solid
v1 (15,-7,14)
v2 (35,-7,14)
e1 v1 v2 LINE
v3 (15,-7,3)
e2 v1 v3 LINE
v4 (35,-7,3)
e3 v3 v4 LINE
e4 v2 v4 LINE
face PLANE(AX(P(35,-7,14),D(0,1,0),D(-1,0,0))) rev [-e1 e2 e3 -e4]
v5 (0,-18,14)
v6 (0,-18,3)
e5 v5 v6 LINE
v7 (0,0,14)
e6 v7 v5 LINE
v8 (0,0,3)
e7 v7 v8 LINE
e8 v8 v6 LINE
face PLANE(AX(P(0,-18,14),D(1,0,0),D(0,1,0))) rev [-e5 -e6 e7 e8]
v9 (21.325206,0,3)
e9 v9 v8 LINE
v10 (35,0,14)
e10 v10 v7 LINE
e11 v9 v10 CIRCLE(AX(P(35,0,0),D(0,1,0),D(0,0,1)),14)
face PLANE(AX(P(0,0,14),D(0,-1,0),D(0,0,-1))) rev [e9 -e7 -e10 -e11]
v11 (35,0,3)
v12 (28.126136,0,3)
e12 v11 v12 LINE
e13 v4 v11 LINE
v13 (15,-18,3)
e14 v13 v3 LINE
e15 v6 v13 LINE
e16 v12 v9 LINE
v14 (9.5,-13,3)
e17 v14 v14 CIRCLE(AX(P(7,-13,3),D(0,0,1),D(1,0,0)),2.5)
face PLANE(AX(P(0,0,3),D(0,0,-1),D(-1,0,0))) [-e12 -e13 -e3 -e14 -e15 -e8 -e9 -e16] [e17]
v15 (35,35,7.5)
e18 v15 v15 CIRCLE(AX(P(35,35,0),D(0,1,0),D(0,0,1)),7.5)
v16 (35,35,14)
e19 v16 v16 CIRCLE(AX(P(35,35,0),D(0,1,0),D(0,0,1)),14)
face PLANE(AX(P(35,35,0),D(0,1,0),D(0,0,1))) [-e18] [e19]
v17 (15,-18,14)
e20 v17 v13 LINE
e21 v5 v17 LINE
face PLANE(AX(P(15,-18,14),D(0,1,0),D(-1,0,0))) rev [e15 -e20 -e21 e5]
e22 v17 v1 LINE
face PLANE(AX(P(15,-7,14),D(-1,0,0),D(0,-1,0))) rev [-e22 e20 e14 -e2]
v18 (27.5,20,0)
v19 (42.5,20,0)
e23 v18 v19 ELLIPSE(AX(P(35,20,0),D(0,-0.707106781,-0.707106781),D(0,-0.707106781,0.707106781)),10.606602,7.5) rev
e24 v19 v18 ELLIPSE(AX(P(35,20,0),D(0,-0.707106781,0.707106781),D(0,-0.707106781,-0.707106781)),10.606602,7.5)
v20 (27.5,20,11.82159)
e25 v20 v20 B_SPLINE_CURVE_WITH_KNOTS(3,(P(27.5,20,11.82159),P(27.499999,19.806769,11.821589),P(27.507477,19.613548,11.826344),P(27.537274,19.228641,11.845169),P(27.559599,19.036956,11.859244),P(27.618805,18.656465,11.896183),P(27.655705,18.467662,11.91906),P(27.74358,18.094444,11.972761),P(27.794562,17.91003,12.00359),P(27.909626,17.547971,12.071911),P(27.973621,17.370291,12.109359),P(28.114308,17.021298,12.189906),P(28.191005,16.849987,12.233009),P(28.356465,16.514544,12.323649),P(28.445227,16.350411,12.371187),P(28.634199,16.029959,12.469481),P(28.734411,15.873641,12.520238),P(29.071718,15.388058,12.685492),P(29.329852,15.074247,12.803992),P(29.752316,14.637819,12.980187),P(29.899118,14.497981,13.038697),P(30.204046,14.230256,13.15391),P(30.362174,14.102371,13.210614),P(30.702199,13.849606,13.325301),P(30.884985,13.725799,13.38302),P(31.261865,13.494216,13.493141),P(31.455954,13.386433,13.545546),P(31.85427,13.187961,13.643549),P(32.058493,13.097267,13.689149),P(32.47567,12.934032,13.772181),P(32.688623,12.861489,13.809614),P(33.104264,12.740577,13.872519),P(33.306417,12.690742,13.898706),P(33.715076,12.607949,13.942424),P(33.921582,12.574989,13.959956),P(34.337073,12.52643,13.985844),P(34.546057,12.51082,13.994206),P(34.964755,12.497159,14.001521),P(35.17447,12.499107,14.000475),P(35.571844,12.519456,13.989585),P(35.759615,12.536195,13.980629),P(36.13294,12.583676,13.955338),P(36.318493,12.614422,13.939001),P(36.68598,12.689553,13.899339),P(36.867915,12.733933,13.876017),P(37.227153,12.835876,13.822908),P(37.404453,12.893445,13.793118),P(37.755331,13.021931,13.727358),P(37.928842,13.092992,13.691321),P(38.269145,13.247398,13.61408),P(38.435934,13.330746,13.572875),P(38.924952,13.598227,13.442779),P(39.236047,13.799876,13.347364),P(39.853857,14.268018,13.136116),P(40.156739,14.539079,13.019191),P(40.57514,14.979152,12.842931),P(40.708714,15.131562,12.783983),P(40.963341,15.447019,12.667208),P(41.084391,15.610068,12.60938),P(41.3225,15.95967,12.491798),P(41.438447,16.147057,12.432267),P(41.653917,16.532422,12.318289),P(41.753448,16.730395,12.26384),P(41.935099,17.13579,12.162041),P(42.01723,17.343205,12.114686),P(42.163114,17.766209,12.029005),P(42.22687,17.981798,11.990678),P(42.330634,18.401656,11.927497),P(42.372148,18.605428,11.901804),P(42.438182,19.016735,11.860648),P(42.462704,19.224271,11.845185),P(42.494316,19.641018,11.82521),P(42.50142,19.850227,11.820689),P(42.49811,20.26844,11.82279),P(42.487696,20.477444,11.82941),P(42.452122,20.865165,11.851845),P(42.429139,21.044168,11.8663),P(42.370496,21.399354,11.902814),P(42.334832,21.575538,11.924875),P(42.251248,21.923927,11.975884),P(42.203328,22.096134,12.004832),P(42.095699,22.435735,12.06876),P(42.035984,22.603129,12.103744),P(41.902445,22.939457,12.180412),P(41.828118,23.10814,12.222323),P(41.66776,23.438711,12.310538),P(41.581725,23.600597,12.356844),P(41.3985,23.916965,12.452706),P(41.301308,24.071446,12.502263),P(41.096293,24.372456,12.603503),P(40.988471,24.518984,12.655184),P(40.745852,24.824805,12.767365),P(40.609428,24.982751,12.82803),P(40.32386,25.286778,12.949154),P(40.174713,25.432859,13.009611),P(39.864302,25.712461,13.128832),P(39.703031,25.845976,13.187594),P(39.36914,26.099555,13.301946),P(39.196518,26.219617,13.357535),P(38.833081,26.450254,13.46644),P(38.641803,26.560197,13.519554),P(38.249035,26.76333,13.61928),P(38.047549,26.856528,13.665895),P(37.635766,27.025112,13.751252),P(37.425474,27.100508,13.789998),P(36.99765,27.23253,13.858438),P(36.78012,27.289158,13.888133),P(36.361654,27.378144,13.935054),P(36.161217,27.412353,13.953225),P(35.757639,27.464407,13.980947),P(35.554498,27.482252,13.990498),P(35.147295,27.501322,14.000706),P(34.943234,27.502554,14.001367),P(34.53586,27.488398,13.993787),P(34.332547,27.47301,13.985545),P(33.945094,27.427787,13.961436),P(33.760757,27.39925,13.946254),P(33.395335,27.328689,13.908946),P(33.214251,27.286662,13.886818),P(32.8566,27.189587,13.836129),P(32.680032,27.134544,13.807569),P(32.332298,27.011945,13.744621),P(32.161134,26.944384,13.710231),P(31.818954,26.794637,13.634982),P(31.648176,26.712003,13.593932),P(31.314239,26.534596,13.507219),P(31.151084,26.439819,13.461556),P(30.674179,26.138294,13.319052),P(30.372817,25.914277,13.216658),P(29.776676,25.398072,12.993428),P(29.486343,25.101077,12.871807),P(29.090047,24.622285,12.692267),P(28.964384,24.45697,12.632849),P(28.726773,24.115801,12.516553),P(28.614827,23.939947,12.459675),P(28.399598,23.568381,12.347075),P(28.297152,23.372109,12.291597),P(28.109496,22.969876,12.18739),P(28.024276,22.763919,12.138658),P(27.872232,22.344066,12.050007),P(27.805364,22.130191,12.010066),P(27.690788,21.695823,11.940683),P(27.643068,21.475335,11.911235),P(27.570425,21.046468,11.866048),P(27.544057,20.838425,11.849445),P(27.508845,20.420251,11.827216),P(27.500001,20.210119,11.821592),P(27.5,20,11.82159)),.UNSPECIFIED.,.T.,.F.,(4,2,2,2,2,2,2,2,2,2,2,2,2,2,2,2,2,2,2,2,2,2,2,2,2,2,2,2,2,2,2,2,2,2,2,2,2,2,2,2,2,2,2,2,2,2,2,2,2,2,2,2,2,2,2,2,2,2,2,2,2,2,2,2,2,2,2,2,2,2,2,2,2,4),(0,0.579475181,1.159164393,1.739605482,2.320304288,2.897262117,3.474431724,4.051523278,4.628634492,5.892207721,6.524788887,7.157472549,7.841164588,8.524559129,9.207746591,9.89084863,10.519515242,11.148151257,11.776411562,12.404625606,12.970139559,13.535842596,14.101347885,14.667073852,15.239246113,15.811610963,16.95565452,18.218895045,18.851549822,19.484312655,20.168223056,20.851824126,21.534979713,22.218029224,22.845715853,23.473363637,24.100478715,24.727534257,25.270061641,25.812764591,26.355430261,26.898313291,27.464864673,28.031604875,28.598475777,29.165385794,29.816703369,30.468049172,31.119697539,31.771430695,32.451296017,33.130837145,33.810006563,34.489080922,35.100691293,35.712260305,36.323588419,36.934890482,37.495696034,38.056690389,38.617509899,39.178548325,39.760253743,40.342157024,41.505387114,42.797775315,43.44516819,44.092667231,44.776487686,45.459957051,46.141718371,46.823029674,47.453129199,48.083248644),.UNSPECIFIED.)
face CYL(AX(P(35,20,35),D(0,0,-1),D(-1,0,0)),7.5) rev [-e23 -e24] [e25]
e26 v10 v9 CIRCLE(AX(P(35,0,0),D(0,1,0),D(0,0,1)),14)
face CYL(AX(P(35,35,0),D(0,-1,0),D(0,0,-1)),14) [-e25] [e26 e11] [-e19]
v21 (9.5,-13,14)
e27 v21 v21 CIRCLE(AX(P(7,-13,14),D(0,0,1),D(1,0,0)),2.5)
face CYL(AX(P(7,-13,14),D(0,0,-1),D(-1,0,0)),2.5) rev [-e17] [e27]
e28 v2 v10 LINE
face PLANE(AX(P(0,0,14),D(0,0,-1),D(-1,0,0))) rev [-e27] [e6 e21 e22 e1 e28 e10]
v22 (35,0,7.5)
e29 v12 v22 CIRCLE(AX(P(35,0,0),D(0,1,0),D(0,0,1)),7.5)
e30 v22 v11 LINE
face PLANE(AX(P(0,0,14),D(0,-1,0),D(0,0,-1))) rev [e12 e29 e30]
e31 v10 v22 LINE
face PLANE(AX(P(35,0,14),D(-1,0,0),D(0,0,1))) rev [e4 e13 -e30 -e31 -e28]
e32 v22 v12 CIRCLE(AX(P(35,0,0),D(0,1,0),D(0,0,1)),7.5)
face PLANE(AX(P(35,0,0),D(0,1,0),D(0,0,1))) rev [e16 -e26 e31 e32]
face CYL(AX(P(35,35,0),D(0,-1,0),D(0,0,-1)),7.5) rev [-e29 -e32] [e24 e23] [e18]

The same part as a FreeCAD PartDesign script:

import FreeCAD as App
import Part
import Sketcher
from FreeCAD import Vector
Q = App.Units.Quantity

doc = App.newDocument("Part")
body = doc.addObject("PartDesign::Body", "Body")

# Sketch on XZ plane
sketch1 = body.newObject("Sketcher::SketchObject", "Sketch")
sketch1.AttachmentSupport = (doc.getObject("XZ_Plane"), [""])
sketch1.MapMode = "FlatFace"
sketch1.addGeometry([
    Part.Circle(Vector(35, 0, 0), Vector(0, 0, 1), 14),
    Part.Circle(Vector(35, 0, 0), Vector(0, 0, 1), 8),
], False)
sketch1.addConstraint([
    Sketcher.Constraint("Coincident", 1, 3, 0, 3),
    Sketcher.Constraint("PointOnObject", 0, 3, -1),
    Sketcher.Constraint("Diameter", 0, Q("28 mm")),
    Sketcher.Constraint("Diameter", 1, Q("15 mm")),
    Sketcher.Constraint("DistanceX", -1, 1, 0, 3, Q("35 mm")),
])
pad1 = body.newObject("PartDesign::Pad", "Pad")
pad1.Profile = sketch1
pad1.Length = 35
pad1.Reversed = True

# Sketch on XY plane
sketch2 = body.newObject("Sketcher::SketchObject", "Sketch001")
sketch2.AttachmentSupport = (doc.getObject("XY_Plane"), [""])
sketch2.MapMode = "FlatFace"
sketch2.addGeometry(Part.Circle(Vector(35, 20, 0), Vector(0, 0, 1), 8), False)
sketch2.addConstraint([
    Sketcher.Constraint("Diameter", 0, Q("15 mm")),
    Sketcher.Constraint("DistanceX", -1, 1, 0, 3, Q("35 mm")),
    Sketcher.Constraint("DistanceY", -1, 1, 0, 3, Q("20 mm")),
])
pocket1 = body.newObject("PartDesign::Pocket", "Pocket")
pocket1.Profile = sketch2
pocket1.Length = 35
pocket1.Reversed = True

# Sketch on XY plane
sketch3 = body.newObject("Sketcher::SketchObject", "Sketch002")
sketch3.AttachmentSupport = (doc.getObject("XY_Plane"), [""])
sketch3.MapMode = "FlatFace"
sketch3.addGeometry([
    Part.LineSegment(Vector(35, 0, 0), Vector(0, 0, 0)),  # 0
    Part.LineSegment(Vector(0, 0, 0), Vector(0, -18, 0)),  # 1
    Part.LineSegment(Vector(0, -18, 0), Vector(15, -18, 0)),  # 2
    Part.LineSegment(Vector(15, -18, 0), Vector(15, -7, 0)),  # 3
    Part.LineSegment(Vector(15, -7, 0), Vector(35, -7, 0)),  # 4
    Part.LineSegment(Vector(35, -7, 0), Vector(35, 0, 0)),  # 5
    Part.Circle(Vector(7, -13, 0), Vector(0, 0, 1), 2.5),  # 6
], False)
sketch3.addConstraint([
    Sketcher.Constraint("Coincident", 0, 2, 1, 1),
    Sketcher.Constraint("Coincident", 1, 2, 2, 1),
    Sketcher.Constraint("Coincident", 2, 2, 3, 1),
    Sketcher.Constraint("Coincident", 3, 2, 4, 1),
    Sketcher.Constraint("Coincident", 4, 2, 5, 1),
    Sketcher.Constraint("Coincident", 5, 2, 0, 1),
    Sketcher.Constraint("Horizontal", 0),
    Sketcher.Constraint("Vertical", 1),
    Sketcher.Constraint("Horizontal", 2),
    Sketcher.Constraint("Vertical", 3),
    Sketcher.Constraint("Horizontal", 4),
    Sketcher.Constraint("Vertical", 5),
    Sketcher.Constraint("Coincident", 0, 2, -1, 1),
    Sketcher.Constraint("Diameter", 6, Q("5 mm")),
    Sketcher.Constraint("DistanceX", 0, 2, 0, 1, Q("35 mm")),
    Sketcher.Constraint("DistanceX", 2, 1, 2, 2, Q("15 mm")),
    Sketcher.Constraint("DistanceY", 1, 2, 1, 1, Q("18 mm")),
    Sketcher.Constraint("DistanceY", 3, 1, 3, 2, Q("11 mm")),
    Sketcher.Constraint("DistanceX", -1, 1, 6, 3, Q("7 mm")),
    Sketcher.Constraint("DistanceY", 6, 3, -1, 1, Q("13 mm")),
])
pad2 = body.newObject("PartDesign::Pad", "Pad001")
pad2.Profile = sketch3
pad2.Length = 14

# Sketch on XY plane
sketch4 = body.newObject("Sketcher::SketchObject", "Sketch003")
sketch4.AttachmentSupport = (doc.getObject("XY_Plane"), [""])
sketch4.MapMode = "FlatFace"
sketch4.addGeometry([
    Part.LineSegment(Vector(35, 0, 0), Vector(0, 0, 0)),  # 0
    Part.LineSegment(Vector(0, 0, 0), Vector(0, -18, 0)),  # 1
    Part.LineSegment(Vector(0, -18, 0), Vector(15, -18, 0)),  # 2
    Part.LineSegment(Vector(15, -18, 0), Vector(15, -7, 0)),  # 3
    Part.LineSegment(Vector(15, -7, 0), Vector(35, -7, 0)),  # 4
    Part.LineSegment(Vector(35, -7, 0), Vector(35, 0, 0)),  # 5
    Part.Circle(Vector(7, -13, 0), Vector(0, 0, 1), 2.5),  # 6
], False)
sketch4.addConstraint([
    Sketcher.Constraint("Coincident", 0, 2, 1, 1),
    Sketcher.Constraint("Coincident", 1, 2, 2, 1),
    Sketcher.Constraint("Coincident", 2, 2, 3, 1),
    Sketcher.Constraint("Coincident", 3, 2, 4, 1),
    Sketcher.Constraint("Coincident", 4, 2, 5, 1),
    Sketcher.Constraint("Coincident", 5, 2, 0, 1),
    Sketcher.Constraint("Horizontal", 0),
    Sketcher.Constraint("Vertical", 1),
    Sketcher.Constraint("Horizontal", 2),
    Sketcher.Constraint("Vertical", 3),
    Sketcher.Constraint("Horizontal", 4),
    Sketcher.Constraint("Vertical", 5),
    Sketcher.Constraint("Coincident", 0, 2, -1, 1),
    Sketcher.Constraint("Diameter", 6, Q("5 mm")),
    Sketcher.Constraint("DistanceX", 0, 2, 0, 1, Q("35 mm")),
    Sketcher.Constraint("DistanceX", 2, 1, 2, 2, Q("15 mm")),
    Sketcher.Constraint("DistanceY", 1, 2, 1, 1, Q("18 mm")),
    Sketcher.Constraint("DistanceY", 3, 1, 3, 2, Q("11 mm")),
    Sketcher.Constraint("DistanceX", -1, 1, 6, 3, Q("7 mm")),
    Sketcher.Constraint("DistanceY", 6, 3, -1, 1, Q("13 mm")),
])
pocket2 = body.newObject("PartDesign::Pocket", "Pocket001")
pocket2.Profile = sketch4
pocket2.Length = 3
pocket2.Reversed = True

doc.recompute()
